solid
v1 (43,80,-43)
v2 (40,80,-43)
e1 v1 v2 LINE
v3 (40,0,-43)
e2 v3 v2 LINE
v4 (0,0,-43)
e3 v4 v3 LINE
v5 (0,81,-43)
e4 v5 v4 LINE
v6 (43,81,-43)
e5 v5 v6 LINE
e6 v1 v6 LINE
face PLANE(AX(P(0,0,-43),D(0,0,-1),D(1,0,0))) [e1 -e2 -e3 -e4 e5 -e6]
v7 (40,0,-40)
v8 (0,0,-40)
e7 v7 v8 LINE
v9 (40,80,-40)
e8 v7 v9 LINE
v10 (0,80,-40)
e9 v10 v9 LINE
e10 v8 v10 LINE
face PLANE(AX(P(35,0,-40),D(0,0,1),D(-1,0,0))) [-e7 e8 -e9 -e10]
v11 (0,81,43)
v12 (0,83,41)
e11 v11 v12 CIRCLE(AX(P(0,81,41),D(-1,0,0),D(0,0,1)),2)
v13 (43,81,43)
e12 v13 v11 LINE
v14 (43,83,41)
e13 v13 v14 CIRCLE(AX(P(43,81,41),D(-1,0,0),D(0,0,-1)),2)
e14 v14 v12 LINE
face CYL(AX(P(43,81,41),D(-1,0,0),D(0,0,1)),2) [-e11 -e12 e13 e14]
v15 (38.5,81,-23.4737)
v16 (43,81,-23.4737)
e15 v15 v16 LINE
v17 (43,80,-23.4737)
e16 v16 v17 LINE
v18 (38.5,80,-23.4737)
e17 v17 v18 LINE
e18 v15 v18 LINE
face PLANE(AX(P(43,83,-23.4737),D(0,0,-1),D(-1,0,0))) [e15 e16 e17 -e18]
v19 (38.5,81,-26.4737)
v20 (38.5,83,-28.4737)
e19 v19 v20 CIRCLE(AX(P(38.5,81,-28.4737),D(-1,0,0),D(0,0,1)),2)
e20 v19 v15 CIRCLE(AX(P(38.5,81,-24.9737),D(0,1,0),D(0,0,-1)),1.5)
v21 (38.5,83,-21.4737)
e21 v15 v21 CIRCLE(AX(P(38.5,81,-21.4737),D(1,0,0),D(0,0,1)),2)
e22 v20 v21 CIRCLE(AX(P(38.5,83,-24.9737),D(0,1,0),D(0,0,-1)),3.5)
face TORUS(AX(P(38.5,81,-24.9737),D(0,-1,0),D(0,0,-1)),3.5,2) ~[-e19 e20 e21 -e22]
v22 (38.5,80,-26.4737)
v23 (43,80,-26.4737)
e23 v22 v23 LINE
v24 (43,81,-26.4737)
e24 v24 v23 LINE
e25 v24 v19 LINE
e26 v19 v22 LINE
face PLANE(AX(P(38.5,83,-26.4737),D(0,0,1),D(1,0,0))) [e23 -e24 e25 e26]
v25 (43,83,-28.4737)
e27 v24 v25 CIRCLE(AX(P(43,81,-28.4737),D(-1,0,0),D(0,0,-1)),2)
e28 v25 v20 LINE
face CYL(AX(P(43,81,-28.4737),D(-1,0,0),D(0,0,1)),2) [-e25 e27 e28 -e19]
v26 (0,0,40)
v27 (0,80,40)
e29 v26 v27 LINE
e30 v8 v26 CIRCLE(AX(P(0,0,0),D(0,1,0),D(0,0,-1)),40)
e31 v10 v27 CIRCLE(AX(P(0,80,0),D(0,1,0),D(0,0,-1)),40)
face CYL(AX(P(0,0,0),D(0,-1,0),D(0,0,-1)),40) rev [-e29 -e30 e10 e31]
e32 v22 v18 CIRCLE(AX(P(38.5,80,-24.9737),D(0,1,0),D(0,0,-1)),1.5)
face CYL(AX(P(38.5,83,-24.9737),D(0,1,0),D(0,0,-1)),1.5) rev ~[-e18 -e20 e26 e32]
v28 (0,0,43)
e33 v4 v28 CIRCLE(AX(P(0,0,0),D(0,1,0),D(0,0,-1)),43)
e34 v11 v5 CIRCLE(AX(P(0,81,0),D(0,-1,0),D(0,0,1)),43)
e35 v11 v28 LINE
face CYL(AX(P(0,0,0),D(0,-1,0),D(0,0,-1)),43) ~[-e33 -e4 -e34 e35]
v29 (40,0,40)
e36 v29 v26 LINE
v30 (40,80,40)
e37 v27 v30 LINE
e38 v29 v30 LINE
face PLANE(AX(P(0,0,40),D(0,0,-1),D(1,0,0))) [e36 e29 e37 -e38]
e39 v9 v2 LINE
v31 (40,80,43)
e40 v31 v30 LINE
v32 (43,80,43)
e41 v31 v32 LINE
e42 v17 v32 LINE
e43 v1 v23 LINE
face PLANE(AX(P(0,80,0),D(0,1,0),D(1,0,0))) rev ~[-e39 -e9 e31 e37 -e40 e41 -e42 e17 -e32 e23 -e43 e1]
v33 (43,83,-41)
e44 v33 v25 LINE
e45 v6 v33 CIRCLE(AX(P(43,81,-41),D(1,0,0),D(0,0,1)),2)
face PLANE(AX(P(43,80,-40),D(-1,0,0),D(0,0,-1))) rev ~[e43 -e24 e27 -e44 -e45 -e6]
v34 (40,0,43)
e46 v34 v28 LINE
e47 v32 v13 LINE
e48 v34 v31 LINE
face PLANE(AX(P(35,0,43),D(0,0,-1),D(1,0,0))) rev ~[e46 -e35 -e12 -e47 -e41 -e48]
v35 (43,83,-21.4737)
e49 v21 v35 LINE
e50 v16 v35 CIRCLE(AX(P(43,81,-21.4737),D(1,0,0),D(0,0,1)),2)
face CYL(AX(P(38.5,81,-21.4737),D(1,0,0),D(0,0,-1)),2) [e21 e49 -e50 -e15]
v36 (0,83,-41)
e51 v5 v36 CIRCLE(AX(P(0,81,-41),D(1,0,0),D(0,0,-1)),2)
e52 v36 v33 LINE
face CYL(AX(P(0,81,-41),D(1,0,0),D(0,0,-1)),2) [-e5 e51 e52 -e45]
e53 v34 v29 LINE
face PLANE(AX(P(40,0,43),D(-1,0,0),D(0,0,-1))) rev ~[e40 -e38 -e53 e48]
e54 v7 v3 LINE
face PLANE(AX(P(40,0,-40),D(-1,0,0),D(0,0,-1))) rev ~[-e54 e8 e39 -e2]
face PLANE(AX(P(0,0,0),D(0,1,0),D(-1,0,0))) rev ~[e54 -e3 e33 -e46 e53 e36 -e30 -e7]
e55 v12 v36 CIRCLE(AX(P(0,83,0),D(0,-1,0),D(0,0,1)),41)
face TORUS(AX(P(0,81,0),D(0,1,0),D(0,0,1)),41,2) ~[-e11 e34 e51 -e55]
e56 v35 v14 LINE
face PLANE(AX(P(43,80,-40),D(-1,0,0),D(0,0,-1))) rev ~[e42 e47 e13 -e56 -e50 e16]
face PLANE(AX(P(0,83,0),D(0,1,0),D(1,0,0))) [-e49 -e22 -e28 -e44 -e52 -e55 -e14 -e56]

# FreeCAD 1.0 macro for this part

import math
import FreeCAD as App
import Part
import Sketcher
from FreeCAD import Vector
Q = App.Units.Quantity


def edges_at(feature, points):
    """Names of the edges that pass closest to the given points."""
    edges = feature.Shape.Edges
    near = lambda p: min(range(len(edges)), key=lambda i: edges[i].distToShape(Part.Vertex(*p))[0])
    return sorted({f"Edge{near(p) + 1}" for p in points})

doc = App.newDocument("Part")
body = doc.addObject("PartDesign::Body", "Body")

# Sketch on XZ plane
sketch1 = doc.addObject("Sketcher::SketchObject", "Sketch")
body.addObject(sketch1)
sketch1.AttachmentSupport = (doc.XZ_Plane, [""])
sketch1.MapMode = "FlatFace"
sketch1.addGeometry([
    Part.LineSegment(Vector(40, 40, 0), Vector(0, 40, 0)),  # 0
    Part.ArcOfCircle(Part.Circle(Vector(0, 0, 0), Vector(0, 0, 1), 40), math.radians(90), math.radians(270)),  # 1
    Part.LineSegment(Vector(0, -40, 0), Vector(40, -40, 0)),  # 2
    Part.LineSegment(Vector(40, -40, 0), Vector(40, -43, 0)),  # 3
    Part.LineSegment(Vector(40, -43, 0), Vector(0, -43, 0)),  # 4
    Part.ArcOfCircle(Part.Circle(Vector(0, 0, 0), Vector(0, 0, 1), 43), math.radians(90), math.radians(270)),  # 5
    Part.LineSegment(Vector(0, 43, 0), Vector(40, 43, 0)),  # 6
    Part.LineSegment(Vector(40, 43, 0), Vector(40, 40, 0)),  # 7
], False)
sketch1.addConstraint([
    Sketcher.Constraint("Tangent", 0, 2, 1, 1),
    Sketcher.Constraint("Tangent", 1, 2, 2, 1),
    Sketcher.Constraint("Coincident", 2, 2, 3, 1),
    Sketcher.Constraint("Coincident", 3, 2, 4, 1),
    Sketcher.Constraint("Tangent", 4, 2, 5, 2),
    Sketcher.Constraint("Tangent", 5, 1, 6, 1),
    Sketcher.Constraint("Coincident", 6, 2, 7, 1),
    Sketcher.Constraint("Coincident", 7, 2, 0, 1),
    Sketcher.Constraint("Horizontal", 0),
    Sketcher.Constraint("Horizontal", 2),
    Sketcher.Constraint("Vertical", 3),
    Sketcher.Constraint("Horizontal", 4),
    Sketcher.Constraint("Horizontal", 6),
    Sketcher.Constraint("Vertical", 7),
    Sketcher.Constraint("Coincident", 1, 3, -1, 1),
    Sketcher.Constraint("Coincident", 5, 3, -1, 1),
    Sketcher.Constraint("Vertical", 3, 2, 6, 2),
    Sketcher.Constraint("DistanceY", 3, 2, 3, 1, Q("3 mm")),
    Sketcher.Constraint("Radius", 1, Q("40 mm")),
    Sketcher.Constraint("DistanceX", 0, 2, 0, 1, Q("40 mm")),
])
pad1 = doc.addObject("PartDesign::Pad", "Pad")
body.addObject(pad1)
pad1.Profile = sketch1
pad1.Length = 80
pad1.Reversed = True

# Sketch on XZ plane
sketch2 = doc.addObject("Sketcher::SketchObject", "Sketch001")
body.addObject(sketch2)
sketch2.AttachmentSupport = (doc.XZ_Plane, [""])
sketch2.MapMode = "FlatFace"
sketch2.AttachmentOffset = App.Placement(Vector(0, 0, -80), App.Rotation())
sketch2.addGeometry([
    Part.LineSegment(Vector(43, -43, 0), Vector(0, -43, 0)),
    Part.ArcOfCircle(Part.Circle(Vector(0, 0, 0), Vector(0, 0, 1), 43), math.radians(90), math.radians(270)),
    Part.LineSegment(Vector(0, 43, 0), Vector(43, 43, 0)),
    Part.LineSegment(Vector(43, 43, 0), Vector(43, -43, 0)),
], False)
sketch2.addConstraint([
    Sketcher.Constraint("Tangent", 0, 2, 1, 2),
    Sketcher.Constraint("Tangent", 1, 1, 2, 1),
    Sketcher.Constraint("Coincident", 2, 2, 3, 1),
    Sketcher.Constraint("Coincident", 3, 2, 0, 1),
    Sketcher.Constraint("Horizontal", 0),
    Sketcher.Constraint("Horizontal", 2),
    Sketcher.Constraint("Vertical", 3),
    Sketcher.Constraint("Coincident", 1, 3, -1, 1),
    Sketcher.Constraint("Radius", 1, Q("43 mm")),
    Sketcher.Constraint("DistanceX", 0, 2, 0, 1, Q("43 mm")),
])
pad2 = doc.addObject("PartDesign::Pad", "Pad001")
body.addObject(pad2)
pad2.Profile = sketch2
pad2.Length = 3
pad2.Reversed = True

# Sketch on XZ plane
sketch3 = doc.addObject("Sketcher::SketchObject", "Sketch002")
body.addObject(sketch3)
sketch3.AttachmentSupport = (doc.XZ_Plane, [""])
sketch3.MapMode = "FlatFace"
sketch3.AttachmentOffset = App.Placement(Vector(0, 0, -83), App.Rotation())
sketch3.addGeometry([
    Part.LineSegment(Vector(38.5, -23.4737, 0), Vector(43, -23.4737, 0)),
    Part.LineSegment(Vector(43, -23.4737, 0), Vector(43, -26.4737, 0)),
    Part.LineSegment(Vector(43, -26.4737, 0), Vector(38.5, -26.4737, 0)),
    Part.ArcOfCircle(Part.Circle(Vector(38.5, -24.9737, 0), Vector(0, 0, 1), 1.5), math.radians(90), math.radians(270)),
], False)
sketch3.addConstraint([
    Sketcher.Constraint("Coincident", 0, 2, 1, 1),
    Sketcher.Constraint("Coincident", 1, 2, 2, 1),
    Sketcher.Constraint("Tangent", 2, 2, 3, 2),
    Sketcher.Constraint("Tangent", 3, 1, 0, 1),
    Sketcher.Constraint("Horizontal", 0),
    Sketcher.Constraint("Vertical", 1),
    Sketcher.Constraint("Horizontal", 2),
    Sketcher.Constraint("Radius", 3, Q("1.5 mm")),
    Sketcher.Constraint("DistanceX", 0, 1, 0, 2, Q("4.5 mm")),
    Sketcher.Constraint("DistanceX", -1, 1, 0, 2, Q("43 mm")),
    Sketcher.Constraint("DistanceY", 3, 3, -1, 1, Q("24.9737 mm")),
])
pocket1 = doc.addObject("PartDesign::Pocket", "Pocket")
body.addObject(pocket1)
pocket1.Profile = sketch3
pocket1.Length = 3
pocket1.Reversed = True
doc.recompute()

fillet = doc.addObject("PartDesign::Fillet", "Fillet")
body.addObject(fillet)
fillet.Base = (pocket1, edges_at(pocket1, [
    (21.5, 83, 43),
    (21.5, 83, -43),
    (-43, 83, 0),
    (37, 83, -24.974),
    (40.75, 83, -26.474),
    (40.75, 83, -23.474),
]))
fillet.Radius = 2

doc.recompute()
